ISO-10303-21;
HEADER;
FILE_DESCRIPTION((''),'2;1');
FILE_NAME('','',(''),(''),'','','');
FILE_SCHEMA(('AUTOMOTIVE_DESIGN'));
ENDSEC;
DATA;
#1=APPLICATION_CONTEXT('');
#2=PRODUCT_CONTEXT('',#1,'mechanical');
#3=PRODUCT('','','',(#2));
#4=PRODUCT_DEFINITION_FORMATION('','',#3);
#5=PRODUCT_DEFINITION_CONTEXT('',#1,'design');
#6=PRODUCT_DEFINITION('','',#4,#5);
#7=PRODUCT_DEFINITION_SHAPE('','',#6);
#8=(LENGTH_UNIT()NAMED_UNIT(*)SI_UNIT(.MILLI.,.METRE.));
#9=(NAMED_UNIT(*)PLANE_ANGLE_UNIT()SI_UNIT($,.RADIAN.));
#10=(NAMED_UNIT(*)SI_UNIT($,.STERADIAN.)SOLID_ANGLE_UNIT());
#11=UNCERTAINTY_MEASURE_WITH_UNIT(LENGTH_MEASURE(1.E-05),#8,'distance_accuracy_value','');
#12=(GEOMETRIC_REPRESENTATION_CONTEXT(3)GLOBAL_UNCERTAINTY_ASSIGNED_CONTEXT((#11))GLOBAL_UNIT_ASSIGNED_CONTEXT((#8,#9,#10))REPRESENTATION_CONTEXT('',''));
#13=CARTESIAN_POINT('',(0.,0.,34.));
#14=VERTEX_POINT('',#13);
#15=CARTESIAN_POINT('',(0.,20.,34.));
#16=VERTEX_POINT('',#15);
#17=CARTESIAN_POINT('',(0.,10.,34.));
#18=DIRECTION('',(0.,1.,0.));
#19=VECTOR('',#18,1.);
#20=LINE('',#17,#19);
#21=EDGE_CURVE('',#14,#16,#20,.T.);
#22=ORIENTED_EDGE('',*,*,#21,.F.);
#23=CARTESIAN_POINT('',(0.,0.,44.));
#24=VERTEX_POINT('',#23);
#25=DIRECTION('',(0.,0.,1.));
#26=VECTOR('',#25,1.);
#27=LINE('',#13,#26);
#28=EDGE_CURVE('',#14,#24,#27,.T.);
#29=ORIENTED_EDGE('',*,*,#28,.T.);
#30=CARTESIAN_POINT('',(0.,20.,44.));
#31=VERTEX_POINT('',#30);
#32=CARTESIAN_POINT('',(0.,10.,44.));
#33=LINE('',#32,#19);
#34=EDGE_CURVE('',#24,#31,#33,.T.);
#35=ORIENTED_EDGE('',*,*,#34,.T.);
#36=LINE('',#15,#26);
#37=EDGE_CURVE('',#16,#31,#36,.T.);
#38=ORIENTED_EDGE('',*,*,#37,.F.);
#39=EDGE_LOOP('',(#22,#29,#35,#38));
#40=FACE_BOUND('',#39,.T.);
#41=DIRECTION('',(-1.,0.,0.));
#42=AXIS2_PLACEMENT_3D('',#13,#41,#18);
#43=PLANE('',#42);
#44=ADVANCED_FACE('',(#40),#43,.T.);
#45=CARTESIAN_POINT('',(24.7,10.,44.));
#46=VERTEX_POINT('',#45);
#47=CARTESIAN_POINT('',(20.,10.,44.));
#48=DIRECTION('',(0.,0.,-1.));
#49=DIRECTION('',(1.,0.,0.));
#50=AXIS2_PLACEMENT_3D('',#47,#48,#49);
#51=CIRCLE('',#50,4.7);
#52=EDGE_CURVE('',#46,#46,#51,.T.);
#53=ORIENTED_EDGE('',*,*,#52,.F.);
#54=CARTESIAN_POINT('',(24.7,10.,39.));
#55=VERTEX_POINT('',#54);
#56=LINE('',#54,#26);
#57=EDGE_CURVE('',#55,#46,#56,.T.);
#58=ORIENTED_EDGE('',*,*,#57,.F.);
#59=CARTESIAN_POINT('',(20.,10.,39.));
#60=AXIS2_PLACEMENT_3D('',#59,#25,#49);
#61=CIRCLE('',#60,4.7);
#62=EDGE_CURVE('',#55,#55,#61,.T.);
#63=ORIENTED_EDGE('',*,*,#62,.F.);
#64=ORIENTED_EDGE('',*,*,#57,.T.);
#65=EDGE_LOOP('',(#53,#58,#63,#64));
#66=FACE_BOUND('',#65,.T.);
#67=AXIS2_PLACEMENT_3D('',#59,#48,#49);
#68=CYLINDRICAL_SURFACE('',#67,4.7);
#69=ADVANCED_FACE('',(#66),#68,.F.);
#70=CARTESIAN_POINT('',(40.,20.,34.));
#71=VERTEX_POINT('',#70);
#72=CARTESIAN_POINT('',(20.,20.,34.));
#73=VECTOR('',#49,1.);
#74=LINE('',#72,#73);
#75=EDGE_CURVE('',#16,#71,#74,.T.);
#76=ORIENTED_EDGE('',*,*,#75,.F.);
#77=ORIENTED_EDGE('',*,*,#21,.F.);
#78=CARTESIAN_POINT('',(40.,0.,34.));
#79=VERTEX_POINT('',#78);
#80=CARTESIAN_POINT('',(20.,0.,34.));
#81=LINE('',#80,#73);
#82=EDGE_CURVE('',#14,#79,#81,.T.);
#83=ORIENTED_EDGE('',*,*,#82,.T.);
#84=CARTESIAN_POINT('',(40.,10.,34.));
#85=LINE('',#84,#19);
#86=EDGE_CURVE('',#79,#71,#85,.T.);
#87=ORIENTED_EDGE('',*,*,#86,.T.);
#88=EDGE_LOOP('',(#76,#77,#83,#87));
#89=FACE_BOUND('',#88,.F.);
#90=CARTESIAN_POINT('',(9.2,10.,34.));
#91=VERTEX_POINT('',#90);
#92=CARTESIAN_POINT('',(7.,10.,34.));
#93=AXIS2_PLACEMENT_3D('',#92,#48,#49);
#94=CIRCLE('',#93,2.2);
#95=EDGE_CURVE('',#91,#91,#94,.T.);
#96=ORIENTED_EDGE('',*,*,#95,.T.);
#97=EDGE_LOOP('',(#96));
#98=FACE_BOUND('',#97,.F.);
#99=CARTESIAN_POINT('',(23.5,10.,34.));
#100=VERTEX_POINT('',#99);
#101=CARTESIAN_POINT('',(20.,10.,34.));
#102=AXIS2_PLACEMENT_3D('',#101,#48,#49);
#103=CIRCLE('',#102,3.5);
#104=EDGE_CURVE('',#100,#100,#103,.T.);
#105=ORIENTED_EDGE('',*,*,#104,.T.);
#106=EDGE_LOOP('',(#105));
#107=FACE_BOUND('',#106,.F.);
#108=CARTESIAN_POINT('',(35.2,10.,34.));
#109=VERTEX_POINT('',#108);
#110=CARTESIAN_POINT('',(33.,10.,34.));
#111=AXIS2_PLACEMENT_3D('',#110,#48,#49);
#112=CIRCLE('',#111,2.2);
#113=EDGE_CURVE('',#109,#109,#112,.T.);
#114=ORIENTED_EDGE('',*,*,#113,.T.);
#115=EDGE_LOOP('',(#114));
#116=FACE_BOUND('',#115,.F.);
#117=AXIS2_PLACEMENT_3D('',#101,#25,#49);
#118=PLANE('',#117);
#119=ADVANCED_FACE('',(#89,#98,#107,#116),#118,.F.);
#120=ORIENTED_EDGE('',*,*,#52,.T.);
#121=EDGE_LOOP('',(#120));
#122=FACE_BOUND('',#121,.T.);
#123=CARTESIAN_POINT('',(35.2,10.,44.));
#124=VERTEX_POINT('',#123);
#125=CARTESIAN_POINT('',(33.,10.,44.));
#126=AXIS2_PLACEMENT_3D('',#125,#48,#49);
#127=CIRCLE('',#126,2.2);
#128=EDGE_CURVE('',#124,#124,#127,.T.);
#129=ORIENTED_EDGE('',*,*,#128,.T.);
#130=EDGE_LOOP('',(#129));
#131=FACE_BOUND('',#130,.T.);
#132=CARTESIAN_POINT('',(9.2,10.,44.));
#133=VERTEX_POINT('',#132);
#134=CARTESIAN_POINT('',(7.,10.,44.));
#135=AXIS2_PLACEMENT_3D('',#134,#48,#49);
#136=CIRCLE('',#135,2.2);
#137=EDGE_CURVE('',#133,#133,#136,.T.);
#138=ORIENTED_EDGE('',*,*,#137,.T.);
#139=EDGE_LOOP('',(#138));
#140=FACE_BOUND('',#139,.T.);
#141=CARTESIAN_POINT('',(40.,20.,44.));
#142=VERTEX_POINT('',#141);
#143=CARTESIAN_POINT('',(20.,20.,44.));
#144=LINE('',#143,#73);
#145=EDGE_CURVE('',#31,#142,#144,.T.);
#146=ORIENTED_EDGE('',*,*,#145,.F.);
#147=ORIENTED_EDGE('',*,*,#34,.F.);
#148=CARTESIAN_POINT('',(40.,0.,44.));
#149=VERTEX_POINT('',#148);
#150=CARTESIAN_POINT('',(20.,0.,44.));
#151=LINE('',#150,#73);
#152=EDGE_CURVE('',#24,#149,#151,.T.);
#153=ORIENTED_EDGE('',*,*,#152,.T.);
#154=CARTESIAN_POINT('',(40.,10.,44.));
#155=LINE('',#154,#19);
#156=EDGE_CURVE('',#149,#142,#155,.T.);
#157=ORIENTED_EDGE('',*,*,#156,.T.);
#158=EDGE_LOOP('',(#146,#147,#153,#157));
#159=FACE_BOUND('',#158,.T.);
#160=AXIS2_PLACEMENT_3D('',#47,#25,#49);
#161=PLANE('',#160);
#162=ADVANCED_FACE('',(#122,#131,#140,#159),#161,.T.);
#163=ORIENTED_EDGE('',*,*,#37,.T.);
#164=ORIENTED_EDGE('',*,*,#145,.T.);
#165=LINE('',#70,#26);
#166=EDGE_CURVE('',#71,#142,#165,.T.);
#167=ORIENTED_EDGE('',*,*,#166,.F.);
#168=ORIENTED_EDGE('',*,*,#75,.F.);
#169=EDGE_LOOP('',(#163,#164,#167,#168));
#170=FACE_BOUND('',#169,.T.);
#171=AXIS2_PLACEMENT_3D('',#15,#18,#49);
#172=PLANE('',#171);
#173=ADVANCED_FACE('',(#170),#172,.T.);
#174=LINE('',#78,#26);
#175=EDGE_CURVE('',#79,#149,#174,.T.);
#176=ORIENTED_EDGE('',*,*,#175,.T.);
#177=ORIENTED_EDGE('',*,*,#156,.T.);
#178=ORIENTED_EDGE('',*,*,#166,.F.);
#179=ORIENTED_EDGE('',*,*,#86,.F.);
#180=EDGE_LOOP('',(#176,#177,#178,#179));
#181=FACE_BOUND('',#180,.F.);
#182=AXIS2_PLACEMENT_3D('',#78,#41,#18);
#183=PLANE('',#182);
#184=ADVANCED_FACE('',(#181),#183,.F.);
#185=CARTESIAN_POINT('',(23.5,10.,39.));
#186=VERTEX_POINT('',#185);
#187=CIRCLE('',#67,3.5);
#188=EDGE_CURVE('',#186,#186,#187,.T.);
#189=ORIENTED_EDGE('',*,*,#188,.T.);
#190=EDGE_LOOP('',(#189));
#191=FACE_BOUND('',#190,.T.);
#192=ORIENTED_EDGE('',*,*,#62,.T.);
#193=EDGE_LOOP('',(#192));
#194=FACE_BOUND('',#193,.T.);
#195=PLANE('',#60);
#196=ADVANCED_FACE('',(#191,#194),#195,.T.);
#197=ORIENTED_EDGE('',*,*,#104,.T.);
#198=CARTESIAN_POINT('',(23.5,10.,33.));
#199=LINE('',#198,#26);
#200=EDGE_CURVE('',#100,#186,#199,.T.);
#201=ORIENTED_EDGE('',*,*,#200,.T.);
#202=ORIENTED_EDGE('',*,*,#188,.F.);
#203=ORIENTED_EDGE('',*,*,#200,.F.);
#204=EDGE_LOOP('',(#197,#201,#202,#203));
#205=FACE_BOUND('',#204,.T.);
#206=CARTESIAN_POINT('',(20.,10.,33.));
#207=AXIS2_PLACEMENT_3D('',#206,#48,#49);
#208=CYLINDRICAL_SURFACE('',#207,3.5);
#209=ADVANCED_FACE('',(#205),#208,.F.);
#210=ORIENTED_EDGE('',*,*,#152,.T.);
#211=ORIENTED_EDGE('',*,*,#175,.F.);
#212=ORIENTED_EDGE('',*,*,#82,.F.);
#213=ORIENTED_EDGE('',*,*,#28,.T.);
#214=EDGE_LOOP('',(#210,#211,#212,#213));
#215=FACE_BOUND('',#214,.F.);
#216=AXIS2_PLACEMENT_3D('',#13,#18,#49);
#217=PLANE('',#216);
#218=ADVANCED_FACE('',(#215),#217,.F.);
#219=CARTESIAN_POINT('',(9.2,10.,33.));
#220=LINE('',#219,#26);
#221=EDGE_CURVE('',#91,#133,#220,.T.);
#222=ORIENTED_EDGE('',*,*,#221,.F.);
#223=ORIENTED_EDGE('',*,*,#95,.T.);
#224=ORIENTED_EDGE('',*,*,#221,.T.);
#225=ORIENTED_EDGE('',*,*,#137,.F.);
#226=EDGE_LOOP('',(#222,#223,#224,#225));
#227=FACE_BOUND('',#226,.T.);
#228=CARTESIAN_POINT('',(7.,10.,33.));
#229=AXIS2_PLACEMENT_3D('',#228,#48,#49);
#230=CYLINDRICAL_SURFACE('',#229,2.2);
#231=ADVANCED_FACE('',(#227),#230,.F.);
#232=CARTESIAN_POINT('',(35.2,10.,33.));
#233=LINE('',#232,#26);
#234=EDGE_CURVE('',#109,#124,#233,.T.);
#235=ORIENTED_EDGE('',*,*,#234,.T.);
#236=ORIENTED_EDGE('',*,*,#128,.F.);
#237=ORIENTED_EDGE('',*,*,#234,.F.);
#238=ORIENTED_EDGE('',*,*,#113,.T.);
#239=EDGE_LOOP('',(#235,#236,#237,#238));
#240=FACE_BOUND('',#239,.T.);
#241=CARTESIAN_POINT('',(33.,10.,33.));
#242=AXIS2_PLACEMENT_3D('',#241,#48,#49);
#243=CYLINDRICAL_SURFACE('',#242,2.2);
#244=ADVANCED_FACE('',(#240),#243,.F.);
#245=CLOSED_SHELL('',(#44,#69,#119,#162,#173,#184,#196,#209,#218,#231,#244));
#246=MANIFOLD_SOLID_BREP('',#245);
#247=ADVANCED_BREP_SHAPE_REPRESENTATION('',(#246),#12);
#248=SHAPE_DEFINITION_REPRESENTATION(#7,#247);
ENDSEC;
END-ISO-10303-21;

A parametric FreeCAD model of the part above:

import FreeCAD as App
import Part
import Sketcher
from FreeCAD import Vector

doc = App.newDocument("Part")
body = doc.addObject("PartDesign::Body", "Body")

sketch1 = body.newObject("Sketcher::SketchObject", "Sketch")
sketch1.AttachmentSupport = (doc.getObject("XY_Plane"), [""])
sketch1.MapMode = "FlatFace"
sketch1.AttachmentOffset = App.Placement(Vector(0, 0, -1), App.Rotation())
sketch1.addGeometry(Part.Circle(Vector(33, 10, 0), Vector(0, 0, 1), 2.2), False)
sketch1.addConstraint(Sketcher.Constraint("Diameter", 0, 4.4))
sketch1.addConstraint(Sketcher.Constraint("DistanceX", -1, 1, 0, 3, 33.0))
sketch1.addConstraint(Sketcher.Constraint("DistanceY", -1, 1, 0, 3, 10.0))
pad1 = body.newObject("PartDesign::Pad", "Pad")
pad1.Profile = sketch1
pad1.Length = 15
body2 = doc.addObject("PartDesign::Body", "Body001")
body2.AllowCompound = True

sketch2 = body2.newObject("Sketcher::SketchObject", "Sketch001")
sketch2.AttachmentSupport = (doc.getObject("XY_Plane001"), [""])
sketch2.MapMode = "FlatFace"
sketch2.AttachmentOffset = App.Placement(Vector(0, 0, -1), App.Rotation())
sketch2.addGeometry(Part.Circle(Vector(7, 10, 0), Vector(0, 0, 1), 2.2), False)
sketch2.addConstraint(Sketcher.Constraint("Diameter", 0, 4.4))
sketch2.addConstraint(Sketcher.Constraint("DistanceX", -1, 1, 0, 3, 7.0))
sketch2.addConstraint(Sketcher.Constraint("DistanceY", -1, 1, 0, 3, 10.0))
pad2 = body2.newObject("PartDesign::Pad", "Pad001")
pad2.Profile = sketch2
pad2.Length = 15
doc.recompute()

boolean = body2.newObject("PartDesign::Boolean", "Boolean")
boolean.Type = "Fuse"
boolean.addObjects([body])
body3 = doc.addObject("PartDesign::Body", "Body002")

sketch3 = body3.newObject("Sketcher::SketchObject", "Sketch002")
sketch3.AttachmentSupport = (doc.getObject("XY_Plane002"), [""])
sketch3.MapMode = "FlatFace"
sketch3.AttachmentOffset = App.Placement(Vector(0, 0, 5), App.Rotation())
sketch3.addGeometry(Part.Circle(Vector(20, 10, 0), Vector(0, 0, 1), 4.7), False)
sketch3.addConstraint(Sketcher.Constraint("Diameter", 0, 9.4))
sketch3.addConstraint(Sketcher.Constraint("DistanceX", -1, 1, 0, 3, 20.0))
sketch3.addConstraint(Sketcher.Constraint("DistanceY", -1, 1, 0, 3, 10.0))
pad3 = body3.newObject("PartDesign::Pad", "Pad002")
pad3.Profile = sketch3
pad3.Length = 15
body4 = doc.addObject("PartDesign::Body", "Body003")

sketch4 = body4.newObject("Sketcher::SketchObject", "Sketch003")
sketch4.AttachmentSupport = (doc.getObject("XY_Plane003"), [""])
sketch4.MapMode = "FlatFace"
sketch4.AttachmentOffset = App.Placement(Vector(0, 0, -1), App.Rotation())
sketch4.addGeometry(Part.Circle(Vector(20, 10, 0), Vector(0, 0, 1), 3.5), False)
sketch4.addConstraint(Sketcher.Constraint("Diameter", 0, 7.0))
sketch4.addConstraint(Sketcher.Constraint("DistanceX", -1, 1, 0, 3, 20.0))
sketch4.addConstraint(Sketcher.Constraint("DistanceY", -1, 1, 0, 3, 10.0))
pad4 = body4.newObject("PartDesign::Pad", "Pad003")
pad4.Profile = sketch4
pad4.Length = 15
doc.recompute()

boolean2 = body4.newObject("PartDesign::Boolean", "Boolean001")
boolean2.Type = "Fuse"
boolean2.addObjects([body3])
body5 = doc.addObject("PartDesign::Body", "Body004")

sketch5 = body5.newObject("Sketcher::SketchObject", "Sketch004")
sketch5.AttachmentSupport = (doc.getObject("XY_Plane004"), [""])
sketch5.MapMode = "FlatFace"
sketch5.addGeometry(Part.LineSegment(Vector(0, 20, 0), Vector(0, 0, 0)), False)
sketch5.addGeometry(Part.LineSegment(Vector(0, 0, 0), Vector(40, 0, 0)), False)
sketch5.addGeometry(Part.LineSegment(Vector(40, 0, 0), Vector(40, 20, 0)), False)
sketch5.addGeometry(Part.LineSegment(Vector(40, 20, 0), Vector(0, 20, 0)), False)
sketch5.addConstraint(Sketcher.Constraint("Coincident", 0, 2, 1, 1))
sketch5.addConstraint(Sketcher.Constraint("Coincident", 1, 2, 2, 1))
sketch5.addConstraint(Sketcher.Constraint("Coincident", 2, 2, 3, 1))
sketch5.addConstraint(Sketcher.Constraint("Coincident", 3, 2, 0, 1))
sketch5.addConstraint(Sketcher.Constraint("Vertical", 0))
sketch5.addConstraint(Sketcher.Constraint("Horizontal", 1))
sketch5.addConstraint(Sketcher.Constraint("Vertical", 2))
sketch5.addConstraint(Sketcher.Constraint("Horizontal", 3))
sketch5.addConstraint(Sketcher.Constraint("Coincident", 0, 2, -1, 1))
sketch5.addConstraint(Sketcher.Constraint("DistanceX", 1, 1, 1, 2, 40.0))
sketch5.addConstraint(Sketcher.Constraint("DistanceY", 0, 2, 0, 1, 20.0))
pad5 = body5.newObject("PartDesign::Pad", "Pad004")
pad5.Profile = sketch5
pad5.Length = 10
doc.recompute()

boolean3 = body5.newObject("PartDesign::Boolean", "Boolean002")
boolean3.Type = "Cut"
boolean3.addObjects([body4])
doc.recompute()

boolean4 = body5.newObject("PartDesign::Boolean", "Boolean003")
boolean4.Type = "Cut"
boolean4.addObjects([body2])
body6 = doc.addObject("PartDesign::Body", "Body005")
doc.recompute()

body5.Placement = App.Placement(Vector(0, 0, 34), App.Rotation(Vector(0, 0, 1), 0))
boolean5 = body6.newObject("PartDesign::Boolean", "Boolean004")
boolean5.Type = "Fuse"
boolean5.addObjects([body5])

doc.recompute()
